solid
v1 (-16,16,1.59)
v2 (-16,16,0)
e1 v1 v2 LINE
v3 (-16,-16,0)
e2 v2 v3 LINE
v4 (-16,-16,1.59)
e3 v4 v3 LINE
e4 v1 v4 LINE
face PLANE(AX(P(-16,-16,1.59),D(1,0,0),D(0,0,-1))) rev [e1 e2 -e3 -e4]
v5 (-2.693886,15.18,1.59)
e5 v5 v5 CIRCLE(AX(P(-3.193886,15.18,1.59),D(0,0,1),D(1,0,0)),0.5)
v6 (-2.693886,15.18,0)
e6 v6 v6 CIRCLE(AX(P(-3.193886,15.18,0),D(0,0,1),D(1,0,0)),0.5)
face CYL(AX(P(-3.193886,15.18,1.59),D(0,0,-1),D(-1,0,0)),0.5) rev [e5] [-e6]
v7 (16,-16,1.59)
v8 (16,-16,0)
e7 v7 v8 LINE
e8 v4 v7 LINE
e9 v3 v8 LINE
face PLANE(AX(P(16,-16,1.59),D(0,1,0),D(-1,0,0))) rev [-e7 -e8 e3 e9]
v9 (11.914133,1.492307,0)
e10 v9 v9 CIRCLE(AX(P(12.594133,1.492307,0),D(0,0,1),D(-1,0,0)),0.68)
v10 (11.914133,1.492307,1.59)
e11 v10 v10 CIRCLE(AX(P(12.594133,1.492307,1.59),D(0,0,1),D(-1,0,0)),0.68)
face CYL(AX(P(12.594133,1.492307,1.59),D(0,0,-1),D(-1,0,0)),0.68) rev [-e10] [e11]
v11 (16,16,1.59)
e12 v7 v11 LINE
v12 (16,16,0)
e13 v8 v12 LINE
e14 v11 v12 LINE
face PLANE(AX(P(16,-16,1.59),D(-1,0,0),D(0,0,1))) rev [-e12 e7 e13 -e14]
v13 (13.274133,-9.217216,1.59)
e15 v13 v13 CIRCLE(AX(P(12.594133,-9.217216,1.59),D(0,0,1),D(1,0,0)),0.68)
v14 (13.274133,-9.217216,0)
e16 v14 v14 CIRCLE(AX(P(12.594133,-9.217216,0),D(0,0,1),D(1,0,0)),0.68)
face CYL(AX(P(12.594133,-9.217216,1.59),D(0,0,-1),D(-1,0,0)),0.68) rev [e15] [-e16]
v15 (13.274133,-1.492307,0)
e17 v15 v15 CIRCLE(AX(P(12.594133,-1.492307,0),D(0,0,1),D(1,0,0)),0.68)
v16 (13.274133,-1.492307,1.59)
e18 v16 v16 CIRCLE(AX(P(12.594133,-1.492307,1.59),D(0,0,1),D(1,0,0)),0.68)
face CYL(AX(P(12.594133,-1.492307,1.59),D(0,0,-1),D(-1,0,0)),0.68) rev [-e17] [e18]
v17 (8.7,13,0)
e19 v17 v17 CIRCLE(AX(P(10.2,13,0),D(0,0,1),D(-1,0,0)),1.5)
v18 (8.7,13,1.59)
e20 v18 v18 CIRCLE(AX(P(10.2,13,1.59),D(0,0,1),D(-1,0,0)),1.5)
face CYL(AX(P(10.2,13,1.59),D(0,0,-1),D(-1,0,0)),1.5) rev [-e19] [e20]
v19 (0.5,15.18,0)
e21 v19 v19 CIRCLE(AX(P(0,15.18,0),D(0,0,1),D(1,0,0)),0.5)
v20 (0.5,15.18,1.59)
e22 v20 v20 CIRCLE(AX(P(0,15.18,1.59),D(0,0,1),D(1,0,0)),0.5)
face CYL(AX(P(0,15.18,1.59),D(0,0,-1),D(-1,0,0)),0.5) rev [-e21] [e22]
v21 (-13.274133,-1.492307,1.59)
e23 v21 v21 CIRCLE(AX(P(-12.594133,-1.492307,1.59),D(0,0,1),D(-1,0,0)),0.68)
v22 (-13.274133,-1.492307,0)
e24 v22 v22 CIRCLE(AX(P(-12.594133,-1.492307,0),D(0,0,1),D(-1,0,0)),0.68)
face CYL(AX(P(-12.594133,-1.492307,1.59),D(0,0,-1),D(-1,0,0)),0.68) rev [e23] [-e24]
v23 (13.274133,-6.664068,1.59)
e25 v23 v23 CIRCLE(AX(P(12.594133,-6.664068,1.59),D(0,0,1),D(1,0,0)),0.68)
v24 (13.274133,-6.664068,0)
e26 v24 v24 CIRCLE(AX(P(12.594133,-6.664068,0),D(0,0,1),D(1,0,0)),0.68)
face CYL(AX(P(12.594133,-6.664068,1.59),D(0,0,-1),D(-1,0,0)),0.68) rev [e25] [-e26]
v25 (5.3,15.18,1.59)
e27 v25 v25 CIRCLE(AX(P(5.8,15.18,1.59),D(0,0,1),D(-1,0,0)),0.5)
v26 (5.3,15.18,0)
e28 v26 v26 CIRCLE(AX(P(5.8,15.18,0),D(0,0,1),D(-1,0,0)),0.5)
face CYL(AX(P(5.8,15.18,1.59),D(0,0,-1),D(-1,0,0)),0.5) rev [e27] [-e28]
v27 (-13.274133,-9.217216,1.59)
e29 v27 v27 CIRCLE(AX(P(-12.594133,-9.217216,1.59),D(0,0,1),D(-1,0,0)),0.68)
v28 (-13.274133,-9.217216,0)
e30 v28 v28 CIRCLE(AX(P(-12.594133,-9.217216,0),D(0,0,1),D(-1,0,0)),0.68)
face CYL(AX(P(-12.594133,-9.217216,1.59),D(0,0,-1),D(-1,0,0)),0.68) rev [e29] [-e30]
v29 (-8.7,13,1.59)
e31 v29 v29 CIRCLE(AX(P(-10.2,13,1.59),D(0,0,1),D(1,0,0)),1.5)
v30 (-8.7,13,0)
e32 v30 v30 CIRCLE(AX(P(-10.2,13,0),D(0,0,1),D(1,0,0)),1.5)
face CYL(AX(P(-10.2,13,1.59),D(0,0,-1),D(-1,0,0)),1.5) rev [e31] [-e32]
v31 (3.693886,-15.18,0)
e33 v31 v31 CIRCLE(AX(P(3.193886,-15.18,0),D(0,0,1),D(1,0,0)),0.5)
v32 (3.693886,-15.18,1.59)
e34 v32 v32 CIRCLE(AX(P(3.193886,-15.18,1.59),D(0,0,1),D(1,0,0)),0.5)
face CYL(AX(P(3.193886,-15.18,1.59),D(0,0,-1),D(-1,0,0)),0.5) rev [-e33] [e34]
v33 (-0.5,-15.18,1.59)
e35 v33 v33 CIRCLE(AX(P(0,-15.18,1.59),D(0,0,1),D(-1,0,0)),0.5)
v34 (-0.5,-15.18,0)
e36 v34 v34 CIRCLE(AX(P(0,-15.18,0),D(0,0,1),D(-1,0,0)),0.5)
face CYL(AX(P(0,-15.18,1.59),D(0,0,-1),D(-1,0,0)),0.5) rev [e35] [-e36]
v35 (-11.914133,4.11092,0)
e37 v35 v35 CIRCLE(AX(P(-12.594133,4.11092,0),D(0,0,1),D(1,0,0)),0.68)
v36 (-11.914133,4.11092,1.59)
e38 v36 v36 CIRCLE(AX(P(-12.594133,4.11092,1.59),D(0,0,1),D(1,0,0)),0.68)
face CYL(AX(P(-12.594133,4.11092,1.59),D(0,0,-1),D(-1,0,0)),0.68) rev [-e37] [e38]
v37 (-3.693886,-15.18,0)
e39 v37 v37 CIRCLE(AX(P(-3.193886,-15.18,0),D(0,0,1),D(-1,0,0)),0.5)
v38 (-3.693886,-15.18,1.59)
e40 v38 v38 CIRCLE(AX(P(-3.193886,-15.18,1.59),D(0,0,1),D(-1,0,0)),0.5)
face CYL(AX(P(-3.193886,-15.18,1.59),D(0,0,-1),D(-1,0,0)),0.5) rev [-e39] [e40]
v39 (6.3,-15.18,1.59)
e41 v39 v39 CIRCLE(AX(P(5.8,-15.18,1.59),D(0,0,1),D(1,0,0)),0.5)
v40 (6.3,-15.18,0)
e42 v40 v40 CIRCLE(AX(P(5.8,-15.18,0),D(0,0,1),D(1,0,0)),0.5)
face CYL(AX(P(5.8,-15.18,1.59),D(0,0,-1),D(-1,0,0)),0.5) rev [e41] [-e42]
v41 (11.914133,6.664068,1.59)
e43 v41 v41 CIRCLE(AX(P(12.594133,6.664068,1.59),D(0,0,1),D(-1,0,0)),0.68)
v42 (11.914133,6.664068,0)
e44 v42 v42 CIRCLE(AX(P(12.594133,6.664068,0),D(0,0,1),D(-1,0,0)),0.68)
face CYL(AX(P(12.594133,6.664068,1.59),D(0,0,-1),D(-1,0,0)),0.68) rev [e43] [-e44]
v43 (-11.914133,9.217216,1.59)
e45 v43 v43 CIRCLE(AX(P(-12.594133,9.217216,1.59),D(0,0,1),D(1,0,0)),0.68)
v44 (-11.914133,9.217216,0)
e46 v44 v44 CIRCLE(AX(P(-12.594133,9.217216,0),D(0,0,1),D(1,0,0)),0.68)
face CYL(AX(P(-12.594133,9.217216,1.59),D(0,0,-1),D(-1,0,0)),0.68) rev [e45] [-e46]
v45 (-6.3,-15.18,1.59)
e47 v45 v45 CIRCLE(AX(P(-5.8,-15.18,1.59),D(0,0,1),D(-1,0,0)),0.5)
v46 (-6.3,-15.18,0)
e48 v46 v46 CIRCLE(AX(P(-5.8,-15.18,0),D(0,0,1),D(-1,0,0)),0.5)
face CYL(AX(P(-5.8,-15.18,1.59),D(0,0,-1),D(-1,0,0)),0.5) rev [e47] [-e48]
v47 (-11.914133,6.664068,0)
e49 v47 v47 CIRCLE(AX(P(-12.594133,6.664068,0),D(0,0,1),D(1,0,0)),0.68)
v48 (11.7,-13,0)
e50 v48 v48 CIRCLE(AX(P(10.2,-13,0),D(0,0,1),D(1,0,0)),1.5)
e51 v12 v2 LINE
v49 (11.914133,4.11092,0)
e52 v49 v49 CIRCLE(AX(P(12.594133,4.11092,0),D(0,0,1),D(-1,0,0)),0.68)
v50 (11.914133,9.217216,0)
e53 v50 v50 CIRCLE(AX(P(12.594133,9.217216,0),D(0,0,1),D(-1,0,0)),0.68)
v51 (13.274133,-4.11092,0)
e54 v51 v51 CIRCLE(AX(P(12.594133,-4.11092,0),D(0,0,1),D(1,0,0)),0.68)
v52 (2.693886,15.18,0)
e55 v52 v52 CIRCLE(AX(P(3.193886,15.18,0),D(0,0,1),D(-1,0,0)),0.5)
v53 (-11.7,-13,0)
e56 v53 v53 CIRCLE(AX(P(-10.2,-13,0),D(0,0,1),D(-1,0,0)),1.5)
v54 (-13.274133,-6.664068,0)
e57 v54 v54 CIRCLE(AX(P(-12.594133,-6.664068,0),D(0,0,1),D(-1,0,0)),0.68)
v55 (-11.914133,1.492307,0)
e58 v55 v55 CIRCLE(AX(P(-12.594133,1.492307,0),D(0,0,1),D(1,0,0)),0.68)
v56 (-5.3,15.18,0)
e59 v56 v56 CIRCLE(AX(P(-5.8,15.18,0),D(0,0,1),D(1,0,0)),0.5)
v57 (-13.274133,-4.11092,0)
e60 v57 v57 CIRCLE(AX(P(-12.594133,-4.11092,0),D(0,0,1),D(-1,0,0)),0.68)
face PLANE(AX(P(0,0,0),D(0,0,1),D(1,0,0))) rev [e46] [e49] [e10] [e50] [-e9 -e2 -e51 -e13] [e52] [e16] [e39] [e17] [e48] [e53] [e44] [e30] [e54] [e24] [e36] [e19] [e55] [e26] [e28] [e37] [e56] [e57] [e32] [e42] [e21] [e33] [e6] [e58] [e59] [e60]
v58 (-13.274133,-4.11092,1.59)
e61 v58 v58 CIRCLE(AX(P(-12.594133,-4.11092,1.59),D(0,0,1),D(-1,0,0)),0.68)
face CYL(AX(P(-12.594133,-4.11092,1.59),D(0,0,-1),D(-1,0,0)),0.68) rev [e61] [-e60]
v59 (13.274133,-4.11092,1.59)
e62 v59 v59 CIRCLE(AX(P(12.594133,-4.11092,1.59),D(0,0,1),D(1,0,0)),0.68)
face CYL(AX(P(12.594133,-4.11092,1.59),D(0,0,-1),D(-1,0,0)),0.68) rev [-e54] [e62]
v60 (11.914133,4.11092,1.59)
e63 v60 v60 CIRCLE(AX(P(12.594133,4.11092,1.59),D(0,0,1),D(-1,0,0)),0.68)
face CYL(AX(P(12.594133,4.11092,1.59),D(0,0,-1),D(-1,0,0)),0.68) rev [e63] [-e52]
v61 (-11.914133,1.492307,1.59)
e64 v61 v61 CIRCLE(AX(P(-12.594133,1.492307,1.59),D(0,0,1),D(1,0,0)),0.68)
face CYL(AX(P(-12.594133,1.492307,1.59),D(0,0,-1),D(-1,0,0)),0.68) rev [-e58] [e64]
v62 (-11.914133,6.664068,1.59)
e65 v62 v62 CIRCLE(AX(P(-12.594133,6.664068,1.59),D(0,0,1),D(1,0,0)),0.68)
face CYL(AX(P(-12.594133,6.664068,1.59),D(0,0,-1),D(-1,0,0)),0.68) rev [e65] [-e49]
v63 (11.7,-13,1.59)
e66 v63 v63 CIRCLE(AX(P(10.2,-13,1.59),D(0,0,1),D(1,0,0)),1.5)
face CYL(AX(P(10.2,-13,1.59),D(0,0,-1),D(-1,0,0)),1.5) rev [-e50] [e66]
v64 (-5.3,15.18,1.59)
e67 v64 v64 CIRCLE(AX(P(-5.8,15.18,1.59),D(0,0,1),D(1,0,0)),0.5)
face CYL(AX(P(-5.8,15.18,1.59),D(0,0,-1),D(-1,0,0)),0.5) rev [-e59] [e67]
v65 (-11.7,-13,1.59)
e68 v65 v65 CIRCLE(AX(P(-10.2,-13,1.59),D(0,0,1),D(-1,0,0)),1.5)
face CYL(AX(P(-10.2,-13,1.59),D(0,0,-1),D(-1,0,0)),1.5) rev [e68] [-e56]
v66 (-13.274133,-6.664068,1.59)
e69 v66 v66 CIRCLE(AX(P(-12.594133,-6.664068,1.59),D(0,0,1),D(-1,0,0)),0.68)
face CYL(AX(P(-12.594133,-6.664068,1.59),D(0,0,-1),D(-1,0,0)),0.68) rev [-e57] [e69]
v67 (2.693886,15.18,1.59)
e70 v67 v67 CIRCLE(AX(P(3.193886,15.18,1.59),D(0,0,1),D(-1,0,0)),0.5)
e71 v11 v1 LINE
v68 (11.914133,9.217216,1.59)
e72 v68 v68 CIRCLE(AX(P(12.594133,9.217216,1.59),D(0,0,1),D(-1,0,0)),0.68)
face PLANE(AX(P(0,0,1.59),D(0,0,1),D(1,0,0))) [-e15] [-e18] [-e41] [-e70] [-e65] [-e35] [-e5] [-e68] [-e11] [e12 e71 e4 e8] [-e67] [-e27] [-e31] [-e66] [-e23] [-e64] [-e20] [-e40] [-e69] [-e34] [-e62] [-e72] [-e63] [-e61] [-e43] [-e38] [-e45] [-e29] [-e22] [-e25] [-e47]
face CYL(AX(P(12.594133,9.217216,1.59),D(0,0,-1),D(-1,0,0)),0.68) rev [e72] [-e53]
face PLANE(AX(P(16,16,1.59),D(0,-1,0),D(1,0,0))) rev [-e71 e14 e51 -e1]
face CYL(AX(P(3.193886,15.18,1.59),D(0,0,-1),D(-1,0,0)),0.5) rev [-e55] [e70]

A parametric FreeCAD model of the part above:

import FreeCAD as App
import Part
import Sketcher

V = App.Vector
Q = App.Units.Quantity


def add_polygon(sketch, points):
    """Adds a closed chain of lines whose ends are joined by coincident constraints."""
    first, n = sketch.GeometryCount, len(points)
    for a, b in zip(points, points[1:] + points[:1]):
        sketch.addGeometry(Part.LineSegment(App.Vector(*a, 0), App.Vector(*b, 0)), False)
    for i in range(n):
        sketch.addConstraint(Sketcher.Constraint("Coincident", first + i, 2, first + (i + 1) % n, 1))

doc = App.newDocument("Part")
body = doc.addObject("PartDesign::Body", "Body")

# Sketch on XY plane
sketch1 = body.newObject("Sketcher::SketchObject", "Sketch")
sketch1.AttachmentSupport = (doc.getObject("XY_Plane"), [""])
sketch1.MapMode = "FlatFace"
add_polygon(sketch1, [(-16, 16), (-16, -16), (16, -16), (16, 16)])  # lines 0-3
sketch1.addGeometry(Part.Circle(V(-10.2, -13, 0), V(0, 0, 1), 1.5), False)  # 4
sketch1.addGeometry(Part.Circle(V(-12.594133, -9.217216, 0), V(0, 0, 1), 0.68), False)  # 5
sketch1.addGeometry(Part.Circle(V(-5.8, -15.18, 0), V(0, 0, 1), 0.5), False)  # 6
sketch1.addGeometry(Part.Circle(V(-3.193886, -15.18, 0), V(0, 0, 1), 0.5), False)  # 7
sketch1.addGeometry(Part.Circle(V(-12.594133, -6.664068, 0), V(0, 0, 1), 0.68), False)  # 8
sketch1.addGeometry(Part.Circle(V(-12.594133, -4.11092, 0), V(0, 0, 1), 0.68), False)  # 9
sketch1.addGeometry(Part.Circle(V(-12.594133, -1.492307, 0), V(0, 0, 1), 0.68), False)  # 10
sketch1.addGeometry(Part.Circle(V(0, -15.18, 0), V(0, 0, 1), 0.5), False)  # 11
sketch1.addGeometry(Part.Circle(V(3.193886, -15.18, 0), V(0, 0, 1), 0.5), False)  # 12
sketch1.addGeometry(Part.Circle(V(5.8, -15.18, 0), V(0, 0, 1), 0.5), False)  # 13
sketch1.addGeometry(Part.Circle(V(10.2, -13, 0), V(0, 0, 1), 1.5), False)  # 14
sketch1.addGeometry(Part.Circle(V(12.594133, -9.217216, 0), V(0, 0, 1), 0.68), False)  # 15
sketch1.addGeometry(Part.Circle(V(12.594133, -6.664068, 0), V(0, 0, 1), 0.68), False)  # 16
sketch1.addGeometry(Part.Circle(V(12.594133, -4.11092, 0), V(0, 0, 1), 0.68), False)  # 17
sketch1.addGeometry(Part.Circle(V(12.594133, -1.492307, 0), V(0, 0, 1), 0.68), False)  # 18
sketch1.addGeometry(Part.Circle(V(-12.594133, 1.492307, 0), V(0, 0, 1), 0.68), False)  # 19
sketch1.addGeometry(Part.Circle(V(-12.594133, 4.11092, 0), V(0, 0, 1), 0.68), False)  # 20
sketch1.addGeometry(Part.Circle(V(-12.594133, 6.664068, 0), V(0, 0, 1), 0.68), False)  # 21
sketch1.addGeometry(Part.Circle(V(-12.594133, 9.217216, 0), V(0, 0, 1), 0.68), False)  # 22
sketch1.addGeometry(Part.Circle(V(-10.2, 13, 0), V(0, 0, 1), 1.5), False)  # 23
sketch1.addGeometry(Part.Circle(V(-5.8, 15.18, 0), V(0, 0, 1), 0.5), False)  # 24
sketch1.addGeometry(Part.Circle(V(-3.193886, 15.18, 0), V(0, 0, 1), 0.5), False)  # 25
sketch1.addGeometry(Part.Circle(V(12.594133, 1.492307, 0), V(0, 0, 1), 0.68), False)  # 26
sketch1.addGeometry(Part.Circle(V(12.594133, 4.11092, 0), V(0, 0, 1), 0.68), False)  # 27
sketch1.addGeometry(Part.Circle(V(12.594133, 6.664068, 0), V(0, 0, 1), 0.68), False)  # 28
sketch1.addGeometry(Part.Circle(V(0, 15.18, 0), V(0, 0, 1), 0.5), False)  # 29
sketch1.addGeometry(Part.Circle(V(3.193886, 15.18, 0), V(0, 0, 1), 0.5), False)  # 30
sketch1.addGeometry(Part.Circle(V(5.8, 15.18, 0), V(0, 0, 1), 0.5), False)  # 31
sketch1.addGeometry(Part.Circle(V(12.594133, 9.217216, 0), V(0, 0, 1), 0.68), False)  # 32
sketch1.addGeometry(Part.Circle(V(10.2, 13, 0), V(0, 0, 1), 1.5), False)  # 33
sketch1.addConstraint(Sketcher.Constraint("Vertical", 0))
sketch1.addConstraint(Sketcher.Constraint("Horizontal", 1))
sketch1.addConstraint(Sketcher.Constraint("Vertical", 2))
sketch1.addConstraint(Sketcher.Constraint("Horizontal", 3))
sketch1.addConstraint(Sketcher.Constraint("Equal", 6, 7))
sketch1.addConstraint(Sketcher.Constraint("Equal", 5, 8))
sketch1.addConstraint(Sketcher.Constraint("Equal", 8, 9))
sketch1.addConstraint(Sketcher.Constraint("Equal", 9, 10))
sketch1.addConstraint(Sketcher.Constraint("Equal", 7, 11))
sketch1.addConstraint(Sketcher.Constraint("Equal", 11, 12))
sketch1.addConstraint(Sketcher.Constraint("Equal", 12, 13))
sketch1.addConstraint(Sketcher.Constraint("Equal", 4, 14))
sketch1.addConstraint(Sketcher.Constraint("Equal", 10, 15))
sketch1.addConstraint(Sketcher.Constraint("Equal", 15, 16))
sketch1.addConstraint(Sketcher.Constraint("Equal", 16, 17))
sketch1.addConstraint(Sketcher.Constraint("Equal", 17, 18))
sketch1.addConstraint(Sketcher.Constraint("Equal", 18, 19))
sketch1.addConstraint(Sketcher.Constraint("Equal", 19, 20))
sketch1.addConstraint(Sketcher.Constraint("Equal", 20, 21))
sketch1.addConstraint(Sketcher.Constraint("Equal", 21, 22))
sketch1.addConstraint(Sketcher.Constraint("Equal", 14, 23))
sketch1.addConstraint(Sketcher.Constraint("Equal", 13, 24))
sketch1.addConstraint(Sketcher.Constraint("Equal", 24, 25))
sketch1.addConstraint(Sketcher.Constraint("Equal", 22, 26))
sketch1.addConstraint(Sketcher.Constraint("Equal", 26, 27))
sketch1.addConstraint(Sketcher.Constraint("Equal", 27, 28))
sketch1.addConstraint(Sketcher.Constraint("Equal", 25, 29))
sketch1.addConstraint(Sketcher.Constraint("Equal", 29, 30))
sketch1.addConstraint(Sketcher.Constraint("Equal", 30, 31))
sketch1.addConstraint(Sketcher.Constraint("Equal", 28, 32))
sketch1.addConstraint(Sketcher.Constraint("Equal", 23, 33))
sketch1.addConstraint(Sketcher.Constraint("Symmetric", 18, 3, 19, 3, -1, 1))
sketch1.addConstraint(Sketcher.Constraint("Symmetric", 17, 3, 20, 3, -1, 1))
sketch1.addConstraint(Sketcher.Constraint("Symmetric", 16, 3, 21, 3, -1, 1))
sketch1.addConstraint(Sketcher.Constraint("Symmetric", 15, 3, 22, 3, -1, 1))
sketch1.addConstraint(Sketcher.Constraint("Symmetric", 14, 3, 23, 3, -1, 1))
sketch1.addConstraint(Sketcher.Constraint("Symmetric", 13, 3, 24, 3, -1, 1))
sketch1.addConstraint(Sketcher.Constraint("Symmetric", 12, 3, 25, 3, -1, 1))
sketch1.addConstraint(Sketcher.Constraint("Symmetric", 10, 3, 26, 3, -1, 1))
sketch1.addConstraint(Sketcher.Constraint("Symmetric", 9, 3, 27, 3, -1, 1))
sketch1.addConstraint(Sketcher.Constraint("Symmetric", 8, 3, 28, 3, -1, 1))
sketch1.addConstraint(Sketcher.Constraint("Symmetric", 11, 3, 29, 3, -1, 1))
sketch1.addConstraint(Sketcher.Constraint("Symmetric", 7, 3, 30, 3, -1, 1))
sketch1.addConstraint(Sketcher.Constraint("Symmetric", 6, 3, 31, 3, -1, 1))
sketch1.addConstraint(Sketcher.Constraint("Symmetric", 5, 3, 32, 3, -1, 1))
sketch1.addConstraint(Sketcher.Constraint("Symmetric", 4, 3, 33, 3, -1, 1))
sketch1.addConstraint(Sketcher.Constraint("Symmetric", 0, 2, 2, 2, -1, 1))
sketch1.addConstraint(Sketcher.Constraint("Symmetric", 7, 3, 12, 3, -2))
sketch1.addConstraint(Sketcher.Constraint("Symmetric", 6, 3, 13, 3, -2))
sketch1.addConstraint(Sketcher.Constraint("Symmetric", 4, 3, 14, 3, -2))
sketch1.addConstraint(Sketcher.Constraint("Symmetric", 5, 3, 15, 3, -2))
sketch1.addConstraint(Sketcher.Constraint("Symmetric", 8, 3, 16, 3, -2))
sketch1.addConstraint(Sketcher.Constraint("Symmetric", 9, 3, 17, 3, -2))
sketch1.addConstraint(Sketcher.Constraint("Symmetric", 10, 3, 18, 3, -2))
sketch1.addConstraint(Sketcher.Constraint("PointOnObject", 11, 3, -2))
sketch1.addConstraint(Sketcher.Constraint("Horizontal", 6, 3, 7, 3))
sketch1.addConstraint(Sketcher.Constraint("Horizontal", 7, 3, 11, 3))
sketch1.addConstraint(Sketcher.Constraint("Vertical", 5, 3, 8, 3))
sketch1.addConstraint(Sketcher.Constraint("Vertical", 8, 3, 9, 3))
sketch1.addConstraint(Sketcher.Constraint("Vertical", 9, 3, 10, 3))
sketch1.addConstraint(Sketcher.Constraint("Equal", 3, 0))
sketch1.addConstraint(Sketcher.Constraint("Diameter", 4, Q("3 mm")))
sketch1.addConstraint(Sketcher.Constraint("Diameter", 6, Q("1 mm")))
sketch1.addConstraint(Sketcher.Constraint("Diameter", 5, Q("1.36 mm")))
sketch1.addConstraint(Sketcher.Constraint("DistanceX", 1, 1, 1, 2, Q("32 mm")))
sketch1.addConstraint(Sketcher.Constraint("DistanceY", 4, 3, -1, 1, Q("13 mm")))
sketch1.addConstraint(Sketcher.Constraint("DistanceX", 4, 3, 13, 3, Q("16 mm")))
sketch1.addConstraint(Sketcher.Constraint("DistanceX", 4, 3, -1, 1, Q("10.2 mm")))
sketch1.addConstraint(Sketcher.Constraint("DistanceY", 6, 3, -1, 1, Q("15.18 mm")))
sketch1.addConstraint(Sketcher.Constraint("DistanceY", 8, 3, -1, 1, Q("6.664068 mm")))
sketch1.addConstraint(Sketcher.Constraint("DistanceY", 9, 3, -1, 1, Q("4.11092 mm")))
sketch1.addConstraint(Sketcher.Constraint("DistanceY", 5, 3, 8, 3, Q("2.553148 mm")))
sketch1.addConstraint(Sketcher.Constraint("DistanceY", 8, 3, 10, 3, Q("5.171761 mm")))
sketch1.addConstraint(Sketcher.Constraint("DistanceX", 5, 3, 12, 3, Q("15.78802 mm")))
sketch1.addConstraint(Sketcher.Constraint("DistanceX", 5, 3, -1, 1, Q("12.594133 mm")))
pad1 = body.newObject("PartDesign::Pad", "Pad")
pad1.Profile = sketch1
pad1.Length = 1.59

doc.recompute()
